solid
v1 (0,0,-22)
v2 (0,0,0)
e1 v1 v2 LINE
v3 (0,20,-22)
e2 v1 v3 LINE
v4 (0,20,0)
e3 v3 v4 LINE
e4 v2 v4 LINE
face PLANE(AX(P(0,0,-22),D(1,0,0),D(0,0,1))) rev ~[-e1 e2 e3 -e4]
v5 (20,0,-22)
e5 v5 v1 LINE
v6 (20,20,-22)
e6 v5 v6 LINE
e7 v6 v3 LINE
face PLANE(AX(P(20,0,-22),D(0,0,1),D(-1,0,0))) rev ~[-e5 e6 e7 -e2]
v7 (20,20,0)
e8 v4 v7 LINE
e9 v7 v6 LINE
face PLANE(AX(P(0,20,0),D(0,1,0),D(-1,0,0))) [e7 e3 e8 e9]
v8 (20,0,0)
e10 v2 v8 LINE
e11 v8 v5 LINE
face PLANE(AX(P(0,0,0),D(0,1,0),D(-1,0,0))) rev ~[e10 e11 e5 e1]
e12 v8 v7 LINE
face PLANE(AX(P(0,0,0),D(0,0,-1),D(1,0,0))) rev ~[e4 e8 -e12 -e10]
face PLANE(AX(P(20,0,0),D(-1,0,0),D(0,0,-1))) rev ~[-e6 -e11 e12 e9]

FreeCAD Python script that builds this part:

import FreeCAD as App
import Part
import Sketcher
Q = App.Units.Quantity


def add_polygon(sketch, points):
    """Adds a closed chain of lines whose ends are joined by coincident constraints."""
    first, n = sketch.GeometryCount, len(points)
    for a, b in zip(points, points[1:] + points[:1]):
        sketch.addGeometry(Part.LineSegment(App.Vector(*a, 0), App.Vector(*b, 0)), False)
    for i in range(n):
        sketch.addConstraint(Sketcher.Constraint("Coincident", first + i, 2, first + (i + 1) % n, 1))

doc = App.newDocument("Part")
body = doc.addObject("PartDesign::Body", "Body")

# Sketch on XZ plane
sketch1 = doc.addObject("Sketcher::SketchObject", "Sketch")
body.addObject(sketch1)
sketch1.AttachmentSupport = (doc.XZ_Plane, [""])
sketch1.MapMode = "FlatFace"
add_polygon(sketch1, [(0, -22), (0, 0), (20, 0), (20, -22)])  # lines 0-3
sketch1.addConstraint([
    Sketcher.Constraint("Vertical", 0),
    Sketcher.Constraint("Horizontal", 1),
    Sketcher.Constraint("Vertical", 2),
    Sketcher.Constraint("Horizontal", 3),
    Sketcher.Constraint("Coincident", 0, 2, -1, 1),
    Sketcher.Constraint("DistanceX", 1, 1, 1, 2, Q("20 mm")),
    Sketcher.Constraint("DistanceY", 0, 1, 0, 2, Q("22 mm")),
])
pad1 = doc.addObject("PartDesign::Pad", "Pad")
body.addObject(pad1)
pad1.Profile = sketch1
pad1.Length = 20
pad1.Reversed = True

doc.recompute()
